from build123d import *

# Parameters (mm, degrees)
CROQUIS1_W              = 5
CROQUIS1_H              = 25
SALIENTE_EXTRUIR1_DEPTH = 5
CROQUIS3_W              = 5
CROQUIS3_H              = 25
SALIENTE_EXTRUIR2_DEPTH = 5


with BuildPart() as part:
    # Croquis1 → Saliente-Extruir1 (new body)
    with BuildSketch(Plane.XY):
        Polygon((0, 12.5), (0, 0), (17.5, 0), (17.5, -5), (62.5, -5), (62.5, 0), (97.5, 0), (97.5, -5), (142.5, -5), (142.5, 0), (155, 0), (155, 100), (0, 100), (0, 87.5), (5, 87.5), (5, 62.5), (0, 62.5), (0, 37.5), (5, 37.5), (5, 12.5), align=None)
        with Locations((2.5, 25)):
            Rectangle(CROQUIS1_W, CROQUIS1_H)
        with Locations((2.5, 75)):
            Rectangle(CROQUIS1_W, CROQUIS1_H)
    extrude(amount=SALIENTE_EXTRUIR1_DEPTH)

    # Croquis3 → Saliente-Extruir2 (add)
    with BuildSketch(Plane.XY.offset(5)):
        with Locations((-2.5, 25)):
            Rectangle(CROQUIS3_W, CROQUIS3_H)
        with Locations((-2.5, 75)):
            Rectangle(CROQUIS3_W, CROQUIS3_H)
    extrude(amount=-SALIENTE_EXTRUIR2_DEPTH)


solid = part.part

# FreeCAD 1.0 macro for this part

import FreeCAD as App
import Part
import Sketcher
from FreeCAD import Vector
Q = App.Units.Quantity


def add_polygon(sketch, points):
    """Adds a closed chain of lines whose ends are joined by coincident constraints."""
    first, n = sketch.GeometryCount, len(points)
    for a, b in zip(points, points[1:] + points[:1]):
        sketch.addGeometry(Part.LineSegment(App.Vector(*a, 0), App.Vector(*b, 0)), False)
    for i in range(n):
        sketch.addConstraint(Sketcher.Constraint("Coincident", first + i, 2, first + (i + 1) % n, 1))

doc = App.newDocument("Part")
body = doc.addObject("PartDesign::Body", "Body")

# Sketch on XY plane
sketch1 = body.newObject("Sketcher::SketchObject", "Sketch")
sketch1.AttachmentSupport = (doc.getObject("XY_Plane"), [""])
sketch1.MapMode = "FlatFace"
add_polygon(sketch1, [(0, 0), (18, 0), (18, -5), (62, -5), (62, 0), (98, 0), (98, -5), (142, -5), (142, 0), (155, 0), (155, 100), (0, 100)])  # lines 0-11
sketch1.addConstraint([
    Sketcher.Constraint("Horizontal", 0),
    Sketcher.Constraint("Vertical", 1),
    Sketcher.Constraint("Horizontal", 2),
    Sketcher.Constraint("Vertical", 3),
    Sketcher.Constraint("Horizontal", 4),
    Sketcher.Constraint("Vertical", 5),
    Sketcher.Constraint("Horizontal", 6),
    Sketcher.Constraint("Vertical", 7),
    Sketcher.Constraint("Horizontal", 8),
    Sketcher.Constraint("Vertical", 9),
    Sketcher.Constraint("Horizontal", 10),
    Sketcher.Constraint("Vertical", 11),
    Sketcher.Constraint("Coincident", 11, 2, -1, 1),
    Sketcher.Constraint("PointOnObject", 3, 2, -1),
    Sketcher.Constraint("PointOnObject", 7, 2, -1),
    Sketcher.Constraint("Horizontal", 2, 2, 5, 2),
    Sketcher.Constraint("Equal", 2, 6),
    Sketcher.Constraint("DistanceX", 2, 1, 2, 2, Q("45 mm")),
    Sketcher.Constraint("DistanceX", 4, 1, 4, 2, Q("35 mm")),
    Sketcher.Constraint("DistanceX", 10, 2, 10, 1, Q("155 mm")),
    Sketcher.Constraint("DistanceY", 1, 2, 1, 1, Q("5 mm")),
    Sketcher.Constraint("DistanceY", 9, 1, 9, 2, Q("100 mm")),
    Sketcher.Constraint("DistanceX", 0, 1, 0, 2, Q("17.5 mm")),
])
pad1 = body.newObject("PartDesign::Pad", "Pad")
pad1.Profile = sketch1
pad1.Length = 5

# Sketch on XY plane
sketch2 = body.newObject("Sketcher::SketchObject", "Sketch001")
sketch2.AttachmentSupport = (doc.getObject("XY_Plane"), [""])
sketch2.MapMode = "FlatFace"
sketch2.AttachmentOffset = App.Placement(Vector(0, 0, 5), App.Rotation())
add_polygon(sketch2, [(-5, 38), (-5, 12), (0, 12), (0, 38)])  # lines 0-3
add_polygon(sketch2, [(-5, 88), (-5, 62), (0, 62), (0, 88)])  # lines 4-7
sketch2.addConstraint([
    Sketcher.Constraint("Vertical", 0),
    Sketcher.Constraint("Horizontal", 1),
    Sketcher.Constraint("Vertical", 2),
    Sketcher.Constraint("Horizontal", 3),
    Sketcher.Constraint("Vertical", 4),
    Sketcher.Constraint("Horizontal", 5),
    Sketcher.Constraint("Vertical", 6),
    Sketcher.Constraint("Horizontal", 7),
    Sketcher.Constraint("PointOnObject", 1, 2, -2),
    Sketcher.Constraint("PointOnObject", 5, 2, -2),
    Sketcher.Constraint("Vertical", 3, 2, 4, 2),
    Sketcher.Constraint("Equal", 2, 4),
    Sketcher.Constraint("DistanceX", 1, 1, 1, 2, Q("5 mm")),
    Sketcher.Constraint("DistanceY", 0, 2, 0, 1, Q("25 mm")),
    Sketcher.Constraint("DistanceY", 3, 2, 4, 2, Q("25 mm")),
    Sketcher.Constraint("DistanceY", -1, 1, 0, 2, Q("12.5 mm")),
])
pad2 = body.newObject("PartDesign::Pad", "Pad001")
pad2.Profile = sketch2
pad2.Length = 5
pad2.Reversed = True

doc.recompute()
